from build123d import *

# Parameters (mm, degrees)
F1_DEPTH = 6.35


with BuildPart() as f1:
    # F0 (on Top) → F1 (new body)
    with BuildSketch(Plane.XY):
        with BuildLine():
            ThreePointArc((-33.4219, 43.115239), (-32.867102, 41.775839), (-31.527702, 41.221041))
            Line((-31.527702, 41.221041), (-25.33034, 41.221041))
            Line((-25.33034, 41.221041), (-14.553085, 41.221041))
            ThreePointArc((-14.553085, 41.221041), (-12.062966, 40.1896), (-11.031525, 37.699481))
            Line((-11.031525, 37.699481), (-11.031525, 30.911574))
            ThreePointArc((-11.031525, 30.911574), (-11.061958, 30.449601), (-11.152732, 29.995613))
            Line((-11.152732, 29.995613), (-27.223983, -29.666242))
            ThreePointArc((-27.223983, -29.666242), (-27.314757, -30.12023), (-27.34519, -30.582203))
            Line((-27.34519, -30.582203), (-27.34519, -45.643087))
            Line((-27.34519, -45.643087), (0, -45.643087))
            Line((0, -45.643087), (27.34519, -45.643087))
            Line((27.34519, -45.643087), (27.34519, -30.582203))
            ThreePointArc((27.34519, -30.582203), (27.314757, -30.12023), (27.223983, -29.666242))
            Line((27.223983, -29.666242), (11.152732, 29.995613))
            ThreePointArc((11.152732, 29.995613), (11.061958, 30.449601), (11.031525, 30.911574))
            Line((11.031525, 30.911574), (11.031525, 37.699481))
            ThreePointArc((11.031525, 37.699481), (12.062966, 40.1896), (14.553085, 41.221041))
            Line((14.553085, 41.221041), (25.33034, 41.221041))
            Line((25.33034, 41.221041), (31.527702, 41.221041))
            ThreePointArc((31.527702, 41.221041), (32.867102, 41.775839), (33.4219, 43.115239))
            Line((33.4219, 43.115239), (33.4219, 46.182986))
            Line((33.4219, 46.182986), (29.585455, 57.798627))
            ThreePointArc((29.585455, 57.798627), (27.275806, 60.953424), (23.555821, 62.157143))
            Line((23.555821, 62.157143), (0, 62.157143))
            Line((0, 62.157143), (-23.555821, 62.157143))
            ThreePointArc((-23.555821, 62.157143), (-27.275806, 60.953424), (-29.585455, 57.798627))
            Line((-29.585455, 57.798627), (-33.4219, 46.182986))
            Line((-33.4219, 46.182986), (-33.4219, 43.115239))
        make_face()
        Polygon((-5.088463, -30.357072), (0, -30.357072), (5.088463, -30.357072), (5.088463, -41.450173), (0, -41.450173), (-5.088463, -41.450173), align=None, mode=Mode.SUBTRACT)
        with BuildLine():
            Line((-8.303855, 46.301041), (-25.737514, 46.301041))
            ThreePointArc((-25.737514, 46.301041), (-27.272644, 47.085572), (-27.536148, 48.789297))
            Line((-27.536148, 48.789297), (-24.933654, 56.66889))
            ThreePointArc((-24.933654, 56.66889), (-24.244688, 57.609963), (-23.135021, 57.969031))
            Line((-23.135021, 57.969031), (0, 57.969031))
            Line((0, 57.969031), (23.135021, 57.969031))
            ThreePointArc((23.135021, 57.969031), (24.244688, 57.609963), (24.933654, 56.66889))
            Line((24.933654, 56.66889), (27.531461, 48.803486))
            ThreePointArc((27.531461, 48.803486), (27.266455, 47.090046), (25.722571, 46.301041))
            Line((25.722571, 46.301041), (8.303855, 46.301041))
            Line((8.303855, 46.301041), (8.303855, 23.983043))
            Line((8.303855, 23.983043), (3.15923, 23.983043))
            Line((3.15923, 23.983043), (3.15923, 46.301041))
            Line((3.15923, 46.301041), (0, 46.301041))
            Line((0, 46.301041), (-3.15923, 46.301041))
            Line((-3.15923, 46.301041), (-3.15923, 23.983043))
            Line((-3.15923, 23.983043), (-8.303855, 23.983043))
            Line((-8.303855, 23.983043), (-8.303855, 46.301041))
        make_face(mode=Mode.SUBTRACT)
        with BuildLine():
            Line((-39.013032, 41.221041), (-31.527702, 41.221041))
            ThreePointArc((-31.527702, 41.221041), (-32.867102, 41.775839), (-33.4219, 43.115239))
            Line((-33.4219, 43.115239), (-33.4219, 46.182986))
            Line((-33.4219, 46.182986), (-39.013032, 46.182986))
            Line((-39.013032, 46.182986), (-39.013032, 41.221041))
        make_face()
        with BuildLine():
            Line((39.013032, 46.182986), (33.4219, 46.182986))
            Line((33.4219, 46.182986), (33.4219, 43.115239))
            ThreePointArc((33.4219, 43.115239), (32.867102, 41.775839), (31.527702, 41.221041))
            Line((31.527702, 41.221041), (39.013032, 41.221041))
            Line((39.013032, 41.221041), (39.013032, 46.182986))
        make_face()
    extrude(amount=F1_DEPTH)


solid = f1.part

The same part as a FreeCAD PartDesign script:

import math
import FreeCAD as App
import Part
import Sketcher
from FreeCAD import Vector
Q = App.Units.Quantity

doc = App.newDocument("Part")
body = doc.addObject("PartDesign::Body", "Body")

# Sketch on XY plane
sketch1 = body.newObject("Sketcher::SketchObject", "Sketch")
sketch1.AttachmentSupport = (doc.getObject("XY_Plane"), [""])
sketch1.MapMode = "FlatFace"
sketch1.addGeometry([
    Part.ArcOfCircle(Part.Circle(Vector(-14.553085, 37.699481, 0), Vector(0, 0, 1), 3.52156), math.radians(-0.000002), math.radians(90.000002)),  # 0
    Part.LineSegment(Vector(-11.031525, 37.699481, 0), Vector(-11.031525, 30.911574, 0)),  # 1
    Part.ArcOfCircle(Part.Circle(Vector(-14.553055, 30.91157, 0), Vector(0, 0, 1), 3.52153), math.radians(-15.076112), math.radians(0.000066)),  # 2
    Part.LineSegment(Vector(-11.152732, 29.995613, 0), Vector(-27.223983, -29.666242, 0)),  # 3
    Part.ArcOfCircle(Part.Circle(Vector(-23.82366, -30.582199, 0), Vector(0, 0, 1), 3.52153), math.radians(164.923888), math.radians(180.000066)),  # 4
    Part.LineSegment(Vector(-27.34519, -30.582203, 0), Vector(-27.34519, -45.643087, 0)),  # 5
    Part.LineSegment(Vector(-27.34519, -45.643087, 0), Vector(27.34519, -45.643087, 0)),  # 6
    Part.LineSegment(Vector(27.34519, -45.643087, 0), Vector(27.34519, -30.582203, 0)),  # 7
    Part.ArcOfCircle(Part.Circle(Vector(23.82366, -30.582199, 0), Vector(0, 0, 1), 3.52153), math.radians(-0.000066), math.radians(15.076112)),  # 8
    Part.LineSegment(Vector(27.223983, -29.666242, 0), Vector(11.152732, 29.995613, 0)),  # 9
    Part.ArcOfCircle(Part.Circle(Vector(14.553055, 30.91157, 0), Vector(0, 0, 1), 3.52153), math.radians(179.999934), math.radians(195.076112)),  # 10
    Part.LineSegment(Vector(11.031525, 30.911574, 0), Vector(11.031525, 37.699481, 0)),  # 11
    Part.ArcOfCircle(Part.Circle(Vector(14.553085, 37.699481, 0), Vector(0, 0, 1), 3.52156), math.radians(89.999998), math.radians(180.000002)),  # 12
    Part.LineSegment(Vector(14.553085, 41.221041, 0), Vector(39.013032, 41.221041, 0)),  # 13
    Part.LineSegment(Vector(39.013032, 41.221041, 0), Vector(39.013032, 46.182986, 0)),  # 14
    Part.LineSegment(Vector(39.013032, 46.182986, 0), Vector(33.4219, 46.182986, 0)),  # 15
    Part.LineSegment(Vector(33.4219, 46.182986, 0), Vector(29.585455, 57.798627, 0)),  # 16
    Part.ArcOfCircle(Part.Circle(Vector(23.555821, 55.807143, 0), Vector(0, 0, 1), 6.35), math.radians(18.277496), math.radians(89.999996)),  # 17
    Part.LineSegment(Vector(23.555821, 62.157143, 0), Vector(-23.555821, 62.157143, 0)),  # 18
    Part.ArcOfCircle(Part.Circle(Vector(-23.555821, 55.807143, 0), Vector(0, 0, 1), 6.35), math.radians(90.000004), math.radians(161.722504)),  # 19
    Part.LineSegment(Vector(-29.585455, 57.798627, 0), Vector(-33.4219, 46.182986, 0)),  # 20
    Part.LineSegment(Vector(-33.4219, 46.182986, 0), Vector(-39.013032, 46.182986, 0)),  # 21
    Part.LineSegment(Vector(-39.013032, 46.182986, 0), Vector(-39.013032, 41.221041, 0)),  # 22
    Part.LineSegment(Vector(-39.013032, 41.221041, 0), Vector(-14.553085, 41.221041, 0)),  # 23
    Part.LineSegment(Vector(-5.088463, -41.450173, 0), Vector(-5.088463, -30.357072, 0)),  # 24
    Part.LineSegment(Vector(-5.088463, -30.357072, 0), Vector(5.088463, -30.357072, 0)),  # 25
    Part.LineSegment(Vector(5.088463, -30.357072, 0), Vector(5.088463, -41.450173, 0)),  # 26
    Part.LineSegment(Vector(5.088463, -41.450173, 0), Vector(-5.088463, -41.450173, 0)),  # 27
    Part.LineSegment(Vector(-8.303855, 23.983043, 0), Vector(-8.303855, 46.301041, 0)),  # 28
    Part.LineSegment(Vector(-8.303855, 46.301041, 0), Vector(-25.737514, 46.301041, 0)),  # 29
    Part.ArcOfCircle(Part.Circle(Vector(-25.737513, 48.19524, 0), Vector(0, 0, 1), 1.894199), math.radians(161.722546), math.radians(269.999968)),  # 30
    Part.LineSegment(Vector(-27.536148, 48.789297, 0), Vector(-24.933654, 56.66889, 0)),  # 31
    Part.ArcOfCircle(Part.Circle(Vector(-23.13502, 56.074833, 0), Vector(0, 0, 1), 1.894198), math.radians(90.000016), math.radians(161.722518)),  # 32
    Part.LineSegment(Vector(-23.135021, 57.969031, 0), Vector(23.135021, 57.969031, 0)),  # 33
    Part.ArcOfCircle(Part.Circle(Vector(23.13502, 56.074833, 0), Vector(0, 0, 1), 1.894198), math.radians(18.277482), math.radians(89.999984)),  # 34
    Part.LineSegment(Vector(24.933654, 56.66889, 0), Vector(27.531461, 48.803486, 0)),  # 35
    Part.ArcOfCircle(Part.Circle(Vector(25.72257, 48.206041, 0), Vector(0, 0, 1), 1.905), math.radians(-89.999971), math.radians(18.277472)),  # 36
    Part.LineSegment(Vector(25.722571, 46.301041, 0), Vector(8.303855, 46.301041, 0)),  # 37
    Part.LineSegment(Vector(8.303855, 46.301041, 0), Vector(8.303855, 23.983043, 0)),  # 38
    Part.LineSegment(Vector(8.303855, 23.983043, 0), Vector(3.15923, 23.983043, 0)),  # 39
    Part.LineSegment(Vector(3.15923, 23.983043, 0), Vector(3.15923, 46.301041, 0)),  # 40
    Part.LineSegment(Vector(3.15923, 46.301041, 0), Vector(-3.15923, 46.301041, 0)),  # 41
    Part.LineSegment(Vector(-3.15923, 46.301041, 0), Vector(-3.15923, 23.983043, 0)),  # 42
    Part.LineSegment(Vector(-3.15923, 23.983043, 0), Vector(-8.303855, 23.983043, 0)),  # 43
], False)
sketch1.addConstraint([
    Sketcher.Constraint("Coincident", 0, 1, 1, 1),
    Sketcher.Constraint("Coincident", 1, 2, 2, 2),
    Sketcher.Constraint("Coincident", 2, 1, 3, 1),
    Sketcher.Constraint("Coincident", 3, 2, 4, 1),
    Sketcher.Constraint("Coincident", 4, 2, 5, 1),
    Sketcher.Constraint("Coincident", 5, 2, 6, 1),
    Sketcher.Constraint("Coincident", 6, 2, 7, 1),
    Sketcher.Constraint("Coincident", 7, 2, 8, 1),
    Sketcher.Constraint("Coincident", 8, 2, 9, 1),
    Sketcher.Constraint("Coincident", 9, 2, 10, 2),
    Sketcher.Constraint("Coincident", 10, 1, 11, 1),
    Sketcher.Constraint("Coincident", 11, 2, 12, 2),
    Sketcher.Constraint("Coincident", 12, 1, 13, 1),
    Sketcher.Constraint("Coincident", 13, 2, 14, 1),
    Sketcher.Constraint("Coincident", 14, 2, 15, 1),
    Sketcher.Constraint("Coincident", 15, 2, 16, 1),
    Sketcher.Constraint("Coincident", 16, 2, 17, 1),
    Sketcher.Constraint("Coincident", 17, 2, 18, 1),
    Sketcher.Constraint("Coincident", 18, 2, 19, 1),
    Sketcher.Constraint("Coincident", 19, 2, 20, 1),
    Sketcher.Constraint("Coincident", 20, 2, 21, 1),
    Sketcher.Constraint("Coincident", 21, 2, 22, 1),
    Sketcher.Constraint("Coincident", 22, 2, 23, 1),
    Sketcher.Constraint("Coincident", 23, 2, 0, 2),
    Sketcher.Constraint("Coincident", 24, 2, 25, 1),
    Sketcher.Constraint("Coincident", 25, 2, 26, 1),
    Sketcher.Constraint("Coincident", 26, 2, 27, 1),
    Sketcher.Constraint("Coincident", 27, 2, 24, 1),
    Sketcher.Constraint("Coincident", 28, 2, 29, 1),
    Sketcher.Constraint("Coincident", 29, 2, 30, 2),
    Sketcher.Constraint("Coincident", 30, 1, 31, 1),
    Sketcher.Constraint("Coincident", 31, 2, 32, 2),
    Sketcher.Constraint("Coincident", 32, 1, 33, 1),
    Sketcher.Constraint("Coincident", 33, 2, 34, 2),
    Sketcher.Constraint("Coincident", 34, 1, 35, 1),
    Sketcher.Constraint("Coincident", 35, 2, 36, 2),
    Sketcher.Constraint("Coincident", 36, 1, 37, 1),
    Sketcher.Constraint("Coincident", 37, 2, 38, 1),
    Sketcher.Constraint("Coincident", 38, 2, 39, 1),
    Sketcher.Constraint("Coincident", 39, 2, 40, 1),
    Sketcher.Constraint("Coincident", 40, 2, 41, 1),
    Sketcher.Constraint("Coincident", 41, 2, 42, 1),
    Sketcher.Constraint("Coincident", 42, 2, 43, 1),
    Sketcher.Constraint("Coincident", 43, 2, 28, 1),
    Sketcher.Constraint("Vertical", 1),
    Sketcher.Constraint("Vertical", 5),
    Sketcher.Constraint("Horizontal", 6),
    Sketcher.Constraint("Vertical", 7),
    Sketcher.Constraint("Vertical", 11),
    Sketcher.Constraint("Horizontal", 13),
    Sketcher.Constraint("Vertical", 14),
    Sketcher.Constraint("Horizontal", 15),
    Sketcher.Constraint("Horizontal", 18),
    Sketcher.Constraint("Horizontal", 21),
    Sketcher.Constraint("Vertical", 22),
    Sketcher.Constraint("Horizontal", 23),
    Sketcher.Constraint("Vertical", 24),
    Sketcher.Constraint("Horizontal", 25),
    Sketcher.Constraint("Vertical", 26),
    Sketcher.Constraint("Horizontal", 27),
    Sketcher.Constraint("Vertical", 28),
    Sketcher.Constraint("Horizontal", 29),
    Sketcher.Constraint("Horizontal", 33),
    Sketcher.Constraint("Horizontal", 37),
    Sketcher.Constraint("Vertical", 38),
    Sketcher.Constraint("Horizontal", 39),
    Sketcher.Constraint("Vertical", 40),
    Sketcher.Constraint("Horizontal", 41),
    Sketcher.Constraint("Vertical", 42),
    Sketcher.Constraint("Horizontal", 43),
    Sketcher.Constraint("Radius", 17, Q("0.25 in")),
    Sketcher.Constraint("Radius", 19, Q("0.25 in")),
    Sketcher.Constraint("Radius", 36, Q("0.075 in")),
    Sketcher.Constraint("DistanceY", 23, 2, 28, 2, Q("0.2 in")),
    Sketcher.Constraint("DistanceY", 12, 1, 37, 2, Q("0.2 in")),
    Sketcher.Constraint("DistanceY", 12, 1, 40, 2, Q("0.2 in")),
    Sketcher.Constraint("DistanceY", 23, 2, 41, 2, Q("0.2 in")),
    Sketcher.Constraint("Radius", 30, 1.894199),
    Sketcher.Constraint("Radius", 32, 1.894198),
    Sketcher.Constraint("Radius", 34, 1.894198),
    Sketcher.Constraint("Radius", 0, 3.52156),
    Sketcher.Constraint("Radius", 2, 3.52153),
    Sketcher.Constraint("Radius", 4, 3.52153),
    Sketcher.Constraint("Radius", 8, 3.52153),
    Sketcher.Constraint("Radius", 10, 3.52153),
    Sketcher.Constraint("Radius", 12, 3.52156),
    Sketcher.Constraint("DistanceY", 24, 1, 24, 2, 11.093101),
    Sketcher.Constraint("DistanceY", 12, 3, 17, 3, Q("0.7129001 in")),
    Sketcher.Constraint("DistanceY", 0, 1, 19, 3, Q("0.7129001 in")),
    Sketcher.Constraint("Distance", 16, 12.232801),
    Sketcher.Constraint("Distance", 20, 12.232801),
    Sketcher.Constraint("DistanceX", 6, 1, 6, 2, 54.69038),
    Sketcher.Constraint("DistanceX", 29, 2, 29, 1, 17.433659),
    Sketcher.Constraint("DistanceX", 33, 1, 33, 2, 46.270042),
    Sketcher.Constraint("DistanceX", 41, 2, 41, 1, 6.31846),
    Sketcher.Constraint("DistanceY", 4, 3, -1, 1, 30.582199),
    Sketcher.Constraint("DistanceY", 8, 3, -1, 1, 30.582199),
    Sketcher.Constraint("DistanceX", -1, 1, 15, 2, 33.4219),
    Sketcher.Constraint("DistanceX", 20, 2, -1, 1, 33.4219),
    Sketcher.Constraint("DistanceX", 19, 3, 32, 3, 0.4208),
    Sketcher.Constraint("DistanceX", 34, 3, 17, 3, 0.4208),
    Sketcher.Constraint("DistanceY", 5, 2, 2, 1, 75.6387),
    Sketcher.Constraint("DistanceX", 34, 3, 17, 2, 0.420801),
    Sketcher.Constraint("DistanceX", 18, 2, 32, 3, 0.420801),
    Sketcher.Constraint("DistanceX", 19, 2, 31, 2, 4.651801),
    Sketcher.Constraint("DistanceX", 19, 3, 32, 1, 0.4208),
    Sketcher.Constraint("DistanceX", 33, 2, 17, 3, 0.4208),
    Sketcher.Constraint("DistanceX", 34, 1, 16, 2, 4.651801),
    Sketcher.Constraint("DistanceY", 15, 2, 35, 2, 2.6205),
    Sketcher.Constraint("DistanceX", 38, 2, 10, 3, 6.2492),
    Sketcher.Constraint("DistanceX", 2, 1, 42, 2, 7.993502),
    Sketcher.Constraint("DistanceX", 2, 3, 43, 2, 6.2492),
    Sketcher.Constraint("Distance", 31, 8.29825),
    Sketcher.Constraint("DistanceX", 13, 1, 13, 2, 24.459947),
    Sketcher.Constraint("DistanceX", 15, 2, 15, 1, 5.591132),
    Sketcher.Constraint("DistanceX", 21, 2, 21, 1, 5.591132),
    Sketcher.Constraint("DistanceX", 23, 1, 23, 2, 24.459947),
    Sketcher.Constraint("DistanceX", 25, 1, 25, 2, 10.176926),
    Sketcher.Constraint("DistanceX", 37, 2, 37, 1, 17.418716),
    Sketcher.Constraint("DistanceX", 39, 2, 39, 1, 5.144625),
    Sketcher.Constraint("DistanceX", 43, 2, 43, 1, 5.144625),
    Sketcher.Constraint("DistanceY", 1, 2, 1, 1, 6.787907),
    Sketcher.Constraint("DistanceY", 5, 2, 5, 1, 15.060884),
    Sketcher.Constraint("DistanceY", 7, 1, 7, 2, 15.060884),
    Sketcher.Constraint("DistanceY", 11, 1, 11, 2, 6.787907),
    Sketcher.Constraint("DistanceY", 14, 1, 14, 2, 4.961945),
    Sketcher.Constraint("DistanceY", 22, 2, 22, 1, 4.961945),
    Sketcher.Constraint("DistanceY", 28, 1, 28, 2, 22.317998),
    Sketcher.Constraint("DistanceY", 38, 2, 38, 1, 22.317998),
    Sketcher.Constraint("DistanceY", -1, 1, 0, 3, 37.699481),
    Sketcher.Constraint("DistanceY", -1, 1, 2, 3, 30.91157),
    Sketcher.Constraint("DistanceX", 4, 3, -1, 1, 23.82366),
    Sketcher.Constraint("DistanceY", -1, 1, 10, 3, 30.91157),
    Sketcher.Constraint("DistanceX", -1, 1, 17, 3, 23.555821),
    Sketcher.Constraint("DistanceX", -1, 1, 36, 3, 25.72257),
    Sketcher.Constraint("DistanceX", 2, 1, -1, 1, 11.152732),
    Sketcher.Constraint("DistanceY", 8, 2, -1, 1, 29.666242),
    Sketcher.Constraint("DistanceY", -1, 1, 11, 2, 37.699481),
    Sketcher.Constraint("DistanceY", 24, 2, -1, 1, 30.357072),
    Sketcher.Constraint("DistanceX", 30, 1, -1, 1, 27.536148),
    Sketcher.Constraint("DistanceY", -1, 1, 31, 2, 56.66889),
    Sketcher.Constraint("DistanceX", 3, 2, 2, 1, 16.071251),
    Sketcher.Constraint("DistanceY", 9, 2, 12, 3, 7.703868),
    Sketcher.Constraint("DistanceX", 3, 2, 24, 2, 22.13552),
])
pad1 = body.newObject("PartDesign::Pad", "Pad")
pad1.Profile = sketch1
pad1.Length = Q("0.25 in")

doc.recompute()
